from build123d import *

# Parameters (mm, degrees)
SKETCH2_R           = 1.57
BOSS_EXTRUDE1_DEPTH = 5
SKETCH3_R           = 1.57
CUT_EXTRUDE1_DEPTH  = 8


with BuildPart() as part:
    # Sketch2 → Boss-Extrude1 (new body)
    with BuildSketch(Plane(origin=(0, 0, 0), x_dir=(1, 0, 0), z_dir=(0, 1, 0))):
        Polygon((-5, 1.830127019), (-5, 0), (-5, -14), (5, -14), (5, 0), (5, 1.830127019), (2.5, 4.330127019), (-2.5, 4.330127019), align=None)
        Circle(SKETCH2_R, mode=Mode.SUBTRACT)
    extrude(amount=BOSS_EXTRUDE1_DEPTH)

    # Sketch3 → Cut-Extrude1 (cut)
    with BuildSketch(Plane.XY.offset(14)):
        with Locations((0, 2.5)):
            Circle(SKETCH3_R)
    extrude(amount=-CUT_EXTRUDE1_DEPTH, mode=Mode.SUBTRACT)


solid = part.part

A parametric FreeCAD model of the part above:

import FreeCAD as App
import Part
import Sketcher

doc = App.newDocument("Part")
params = doc.addObject("Spreadsheet::Sheet", "Params")
for row, (alias, value) in enumerate([
    ("sketch1_diameter", "3.14 mm"),
    ("sketch1_width", "10 mm"),
    ("sketch1_width2", "5 mm"),
    ("pad1_length", "5 mm"),
    ("sketch2_diameter", "3.14 mm"),
    ("pocket1_length", "8 mm"),
], start=1):
    params.set(f"A{row}", alias)
    params.set(f"B{row}", "=" + value)
    params.setAlias(f"B{row}", alias)

body = doc.addObject("PartDesign::Body", "Body")

sketch1 = doc.addObject("Sketcher::SketchObject", "Sketch")
body.addObject(sketch1)
sketch1.AttachmentSupport = (doc.XZ_Plane, [""])
sketch1.MapMode = "FlatFace"
sketch1.addGeometry([
    Part.LineSegment(App.Vector(-5, -1.830127, 0), App.Vector(-5, 14, 0)),
    Part.LineSegment(App.Vector(-5, 14, 0), App.Vector(5, 14, 0)),
    Part.LineSegment(App.Vector(5, 14, 0), App.Vector(5, -1.830127, 0)),
    Part.LineSegment(App.Vector(5, -1.830127, 0), App.Vector(2.5, -4.330127, 0)),
    Part.LineSegment(App.Vector(2.5, -4.330127, 0), App.Vector(-2.5, -4.330127, 0)),
    Part.LineSegment(App.Vector(-2.5, -4.330127, 0), App.Vector(-5, -1.830127, 0)),
    Part.Circle(App.Vector(0, 0, 0), App.Vector(0, 0, 1), 1.57),
], False)
sketch1.addConstraint([
    Sketcher.Constraint("Coincident", 0, 2, 1, 1),
    Sketcher.Constraint("Coincident", 1, 2, 2, 1),
    Sketcher.Constraint("Coincident", 2, 2, 3, 1),
    Sketcher.Constraint("Coincident", 3, 2, 4, 1),
    Sketcher.Constraint("Coincident", 4, 2, 5, 1),
    Sketcher.Constraint("Coincident", 5, 2, 0, 1),
    Sketcher.Constraint("Vertical", 0),
    Sketcher.Constraint("Horizontal", 1),
    Sketcher.Constraint("Vertical", 2),
    Sketcher.Constraint("Horizontal", 4),
    Sketcher.Constraint("Coincident", 6, 3, -1, 1),
    Sketcher.Constraint("Symmetric", 2, 2, 5, 2, -2),
    Sketcher.Constraint("Perpendicular", 3, 5),
    Sketcher.Constraint("Equal", 3, 5),
    Sketcher.Constraint("Diameter", 6, 3.14),
    Sketcher.Constraint("DistanceX", 1, 1, 1, 2, 10.0),
    Sketcher.Constraint("DistanceX", 4, 2, 4, 1, 5.0),
    Sketcher.Constraint("DistanceY", -1, 1, 0, 2, 14.0),
    Sketcher.Constraint("DistanceY", 0, 1, 0, 2, 15.830127),
])
sketch1.setExpression("Constraints[14]", "Params.sketch1_diameter")
sketch1.setExpression("Constraints[15]", "Params.sketch1_width")
sketch1.setExpression("Constraints[16]", "Params.sketch1_width2")
pad1 = doc.addObject("PartDesign::Pad", "Pad")
body.addObject(pad1)
pad1.Profile = sketch1
pad1.setExpression("Length", "Params.pad1_length")
pad1.Reversed = True

sketch2 = doc.addObject("Sketcher::SketchObject", "Sketch001")
body.addObject(sketch2)
sketch2.AttachmentSupport = (doc.XY_Plane, [""])
sketch2.MapMode = "FlatFace"
sketch2.AttachmentOffset = App.Placement(App.Vector(0, 0, 14), App.Rotation())
sketch2.addGeometry(Part.Circle(App.Vector(0, 2.5, 0), App.Vector(0, 0, 1), 1.57), False)
sketch2.addConstraint([
    Sketcher.Constraint("PointOnObject", 0, 3, -2),
    Sketcher.Constraint("Diameter", 0, 3.14),
    Sketcher.Constraint("DistanceY", -1, 1, 0, 3, 2.5),
])
sketch2.setExpression("Constraints[1]", "Params.sketch2_diameter")
pocket1 = doc.addObject("PartDesign::Pocket", "Pocket")
body.addObject(pocket1)
pocket1.Profile = sketch2
pocket1.setExpression("Length", "Params.pocket1_length")

doc.recompute()
